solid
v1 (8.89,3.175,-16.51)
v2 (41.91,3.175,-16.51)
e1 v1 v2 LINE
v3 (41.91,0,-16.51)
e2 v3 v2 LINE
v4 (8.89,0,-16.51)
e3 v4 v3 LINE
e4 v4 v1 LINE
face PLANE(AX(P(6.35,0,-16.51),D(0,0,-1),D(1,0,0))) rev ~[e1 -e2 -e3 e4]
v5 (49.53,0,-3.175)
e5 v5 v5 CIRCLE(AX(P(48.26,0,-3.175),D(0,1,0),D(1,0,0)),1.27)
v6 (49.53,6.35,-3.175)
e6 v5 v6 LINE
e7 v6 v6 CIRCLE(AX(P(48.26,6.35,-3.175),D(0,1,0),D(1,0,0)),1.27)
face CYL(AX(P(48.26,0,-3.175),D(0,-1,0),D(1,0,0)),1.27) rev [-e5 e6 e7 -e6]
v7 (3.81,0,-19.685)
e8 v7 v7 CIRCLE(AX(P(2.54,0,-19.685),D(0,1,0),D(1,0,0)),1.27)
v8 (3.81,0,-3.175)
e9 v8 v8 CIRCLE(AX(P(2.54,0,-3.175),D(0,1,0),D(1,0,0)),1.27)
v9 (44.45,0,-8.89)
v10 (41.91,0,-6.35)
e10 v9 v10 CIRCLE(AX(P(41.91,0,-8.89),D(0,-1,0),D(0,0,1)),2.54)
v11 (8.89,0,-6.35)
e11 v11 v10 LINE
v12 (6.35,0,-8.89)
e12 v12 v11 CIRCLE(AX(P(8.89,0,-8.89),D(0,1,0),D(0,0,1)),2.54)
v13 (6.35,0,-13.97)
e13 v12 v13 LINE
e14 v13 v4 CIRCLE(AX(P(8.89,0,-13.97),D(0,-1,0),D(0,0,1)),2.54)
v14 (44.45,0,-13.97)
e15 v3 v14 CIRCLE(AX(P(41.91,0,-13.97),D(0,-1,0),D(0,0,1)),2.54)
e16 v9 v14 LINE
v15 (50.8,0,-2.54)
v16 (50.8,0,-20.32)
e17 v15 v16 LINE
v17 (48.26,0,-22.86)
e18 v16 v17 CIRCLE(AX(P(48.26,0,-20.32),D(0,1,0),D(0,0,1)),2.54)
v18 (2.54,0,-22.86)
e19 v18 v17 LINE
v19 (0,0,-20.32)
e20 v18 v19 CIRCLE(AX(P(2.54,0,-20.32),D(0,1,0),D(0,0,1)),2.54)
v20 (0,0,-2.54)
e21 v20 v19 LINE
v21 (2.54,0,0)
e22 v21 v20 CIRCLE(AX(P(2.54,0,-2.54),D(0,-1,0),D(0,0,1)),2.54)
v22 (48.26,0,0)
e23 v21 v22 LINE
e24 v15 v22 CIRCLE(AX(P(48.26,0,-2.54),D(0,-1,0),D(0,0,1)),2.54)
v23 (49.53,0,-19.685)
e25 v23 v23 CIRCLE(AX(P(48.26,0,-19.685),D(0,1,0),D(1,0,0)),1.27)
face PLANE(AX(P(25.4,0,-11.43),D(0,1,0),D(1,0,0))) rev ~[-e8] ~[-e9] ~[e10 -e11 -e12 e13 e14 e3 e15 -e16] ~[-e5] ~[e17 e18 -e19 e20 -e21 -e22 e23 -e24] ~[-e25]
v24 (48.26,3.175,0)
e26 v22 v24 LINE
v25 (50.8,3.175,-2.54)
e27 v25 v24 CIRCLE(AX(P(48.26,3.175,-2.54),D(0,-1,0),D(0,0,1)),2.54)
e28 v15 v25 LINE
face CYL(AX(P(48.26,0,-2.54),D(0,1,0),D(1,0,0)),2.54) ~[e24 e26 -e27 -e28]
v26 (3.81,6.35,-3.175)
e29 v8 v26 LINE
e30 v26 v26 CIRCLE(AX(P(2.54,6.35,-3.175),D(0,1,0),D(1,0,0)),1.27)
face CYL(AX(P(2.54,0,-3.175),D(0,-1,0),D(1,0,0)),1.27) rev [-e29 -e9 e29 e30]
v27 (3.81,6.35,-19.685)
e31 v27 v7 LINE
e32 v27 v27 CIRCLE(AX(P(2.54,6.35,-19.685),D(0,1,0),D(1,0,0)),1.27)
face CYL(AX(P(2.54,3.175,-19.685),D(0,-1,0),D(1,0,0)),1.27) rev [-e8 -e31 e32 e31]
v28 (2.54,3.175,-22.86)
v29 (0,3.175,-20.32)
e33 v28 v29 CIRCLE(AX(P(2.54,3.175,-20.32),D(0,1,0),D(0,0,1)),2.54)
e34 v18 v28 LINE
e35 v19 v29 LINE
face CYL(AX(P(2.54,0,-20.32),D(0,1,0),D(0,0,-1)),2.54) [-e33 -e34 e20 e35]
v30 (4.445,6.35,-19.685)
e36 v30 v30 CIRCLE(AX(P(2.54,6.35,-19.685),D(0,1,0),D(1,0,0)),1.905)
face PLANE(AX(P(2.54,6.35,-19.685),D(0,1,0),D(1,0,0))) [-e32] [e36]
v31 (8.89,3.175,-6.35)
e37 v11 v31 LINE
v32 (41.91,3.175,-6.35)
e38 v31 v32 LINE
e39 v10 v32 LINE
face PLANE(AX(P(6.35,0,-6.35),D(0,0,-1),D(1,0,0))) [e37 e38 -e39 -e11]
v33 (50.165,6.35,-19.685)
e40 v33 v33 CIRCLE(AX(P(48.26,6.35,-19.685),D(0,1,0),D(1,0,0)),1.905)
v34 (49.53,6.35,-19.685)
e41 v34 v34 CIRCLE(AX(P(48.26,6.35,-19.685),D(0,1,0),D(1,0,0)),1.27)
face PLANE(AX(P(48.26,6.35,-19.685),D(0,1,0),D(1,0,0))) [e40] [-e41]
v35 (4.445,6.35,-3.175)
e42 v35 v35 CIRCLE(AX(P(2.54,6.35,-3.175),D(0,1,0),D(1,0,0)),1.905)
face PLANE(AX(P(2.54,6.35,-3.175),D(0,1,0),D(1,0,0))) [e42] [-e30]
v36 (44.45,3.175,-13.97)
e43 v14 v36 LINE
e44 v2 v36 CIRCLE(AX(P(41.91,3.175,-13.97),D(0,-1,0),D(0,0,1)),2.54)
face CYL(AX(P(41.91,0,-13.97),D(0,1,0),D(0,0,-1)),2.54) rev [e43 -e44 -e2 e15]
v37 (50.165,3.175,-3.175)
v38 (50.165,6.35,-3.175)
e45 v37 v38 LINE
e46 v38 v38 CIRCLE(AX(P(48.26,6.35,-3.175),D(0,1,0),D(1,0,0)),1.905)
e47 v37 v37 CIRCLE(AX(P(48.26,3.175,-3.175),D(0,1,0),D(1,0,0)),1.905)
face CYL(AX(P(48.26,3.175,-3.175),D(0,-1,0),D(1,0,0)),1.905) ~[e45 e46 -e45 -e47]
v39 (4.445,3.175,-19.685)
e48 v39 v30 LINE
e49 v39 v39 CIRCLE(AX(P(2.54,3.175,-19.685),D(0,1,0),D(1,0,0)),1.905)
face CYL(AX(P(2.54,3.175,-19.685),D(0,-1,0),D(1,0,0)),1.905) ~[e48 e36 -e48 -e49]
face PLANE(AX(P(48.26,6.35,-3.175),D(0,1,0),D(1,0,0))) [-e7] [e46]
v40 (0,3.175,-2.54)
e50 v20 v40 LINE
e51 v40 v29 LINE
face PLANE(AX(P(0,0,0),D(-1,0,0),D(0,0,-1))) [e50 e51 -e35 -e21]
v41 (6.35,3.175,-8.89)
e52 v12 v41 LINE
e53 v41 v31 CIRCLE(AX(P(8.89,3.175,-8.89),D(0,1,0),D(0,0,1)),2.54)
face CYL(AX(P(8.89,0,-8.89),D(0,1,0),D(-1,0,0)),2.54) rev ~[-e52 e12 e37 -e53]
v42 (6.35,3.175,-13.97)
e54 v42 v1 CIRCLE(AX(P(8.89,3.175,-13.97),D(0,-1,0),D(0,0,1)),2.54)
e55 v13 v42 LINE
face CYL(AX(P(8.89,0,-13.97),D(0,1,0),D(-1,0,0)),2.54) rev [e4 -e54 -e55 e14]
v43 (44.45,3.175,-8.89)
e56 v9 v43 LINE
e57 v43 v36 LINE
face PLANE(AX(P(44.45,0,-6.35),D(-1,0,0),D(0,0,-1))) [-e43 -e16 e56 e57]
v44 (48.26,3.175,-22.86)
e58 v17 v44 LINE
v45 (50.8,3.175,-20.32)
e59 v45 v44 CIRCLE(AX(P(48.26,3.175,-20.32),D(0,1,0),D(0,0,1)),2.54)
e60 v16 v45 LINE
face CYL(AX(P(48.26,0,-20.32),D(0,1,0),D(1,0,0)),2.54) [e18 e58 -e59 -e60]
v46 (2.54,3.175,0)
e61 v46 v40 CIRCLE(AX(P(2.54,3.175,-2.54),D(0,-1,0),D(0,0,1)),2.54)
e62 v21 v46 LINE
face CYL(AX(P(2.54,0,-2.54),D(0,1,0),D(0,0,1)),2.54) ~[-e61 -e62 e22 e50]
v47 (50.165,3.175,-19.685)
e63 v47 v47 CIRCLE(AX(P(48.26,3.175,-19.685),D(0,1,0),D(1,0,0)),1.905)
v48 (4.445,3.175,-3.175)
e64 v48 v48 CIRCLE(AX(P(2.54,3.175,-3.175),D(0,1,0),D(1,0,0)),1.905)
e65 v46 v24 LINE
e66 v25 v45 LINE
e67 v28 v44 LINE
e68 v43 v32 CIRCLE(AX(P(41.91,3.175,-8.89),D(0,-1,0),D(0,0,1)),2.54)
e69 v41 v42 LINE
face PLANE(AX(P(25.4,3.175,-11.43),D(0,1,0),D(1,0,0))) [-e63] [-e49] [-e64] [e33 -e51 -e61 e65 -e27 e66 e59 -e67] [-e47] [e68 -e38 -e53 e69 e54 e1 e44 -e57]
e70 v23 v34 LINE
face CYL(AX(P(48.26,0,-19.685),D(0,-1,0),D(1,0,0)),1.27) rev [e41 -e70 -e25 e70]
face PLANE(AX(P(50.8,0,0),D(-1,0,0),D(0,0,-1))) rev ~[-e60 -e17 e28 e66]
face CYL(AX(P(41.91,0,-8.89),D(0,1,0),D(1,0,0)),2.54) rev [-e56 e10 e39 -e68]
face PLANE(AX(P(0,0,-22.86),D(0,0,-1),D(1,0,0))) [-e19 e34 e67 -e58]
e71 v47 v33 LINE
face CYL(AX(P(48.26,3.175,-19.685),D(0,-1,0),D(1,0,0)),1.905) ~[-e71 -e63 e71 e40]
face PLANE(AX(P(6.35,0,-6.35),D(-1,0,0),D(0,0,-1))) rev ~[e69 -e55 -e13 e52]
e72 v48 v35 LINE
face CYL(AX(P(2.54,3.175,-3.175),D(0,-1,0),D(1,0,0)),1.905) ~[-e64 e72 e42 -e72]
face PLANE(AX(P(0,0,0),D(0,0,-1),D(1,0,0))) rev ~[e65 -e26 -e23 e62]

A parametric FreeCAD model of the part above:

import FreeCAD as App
import Part
import Sketcher

V = App.Vector
Q = App.Units.Quantity


def edges_at(feature, points):
    """Names of the edges that pass closest to the given points."""
    edges = feature.Shape.Edges
    near = lambda p: min(range(len(edges)), key=lambda i: edges[i].distToShape(Part.Vertex(*p))[0])
    return sorted({f"Edge{near(p) + 1}" for p in points})

doc = App.newDocument("Part")
body = doc.addObject("PartDesign::Body", "Body")

# Sketch on XZ plane
sketch1 = body.newObject("Sketcher::SketchObject", "Sketch")
sketch1.AttachmentSupport = (doc.getObject("XZ_Plane"), [""])
sketch1.MapMode = "FlatFace"
sketch1.addGeometry([
    Part.LineSegment(V(0, -22.9, 0), V(0, 0, 0)),  # 0
    Part.LineSegment(V(0, 0, 0), V(50.8, 0, 0)),  # 1
    Part.LineSegment(V(50.8, 0, 0), V(50.8, -22.9, 0)),  # 2
    Part.LineSegment(V(50.8, -22.9, 0), V(0, -22.9, 0)),  # 3
    Part.Circle(V(2.5, -3.2, 0), V(0, 0, 1), 1.3),  # 4
    Part.Circle(V(48.3, -3.2, 0), V(0, 0, 1), 1.3),  # 5
    Part.Circle(V(2.5, -19.7, 0), V(0, 0, 1), 1.3),  # 6
    Part.LineSegment(V(44.5, -6.3, 0), V(6.3, -6.3, 0)),  # 7
    Part.LineSegment(V(6.3, -6.3, 0), V(6.3, -16.5, 0)),  # 8
    Part.LineSegment(V(6.3, -16.5, 0), V(44.5, -16.5, 0)),  # 9
    Part.LineSegment(V(44.5, -16.5, 0), V(44.5, -6.3, 0)),  # 10
    Part.Circle(V(48.3, -19.7, 0), V(0, 0, 1), 1.3),  # 11
], False)
sketch1.addConstraint([
    Sketcher.Constraint("Coincident", 0, 2, 1, 1),
    Sketcher.Constraint("Coincident", 1, 2, 2, 1),
    Sketcher.Constraint("Coincident", 2, 2, 3, 1),
    Sketcher.Constraint("Coincident", 3, 2, 0, 1),
    Sketcher.Constraint("Coincident", 7, 2, 8, 1),
    Sketcher.Constraint("Coincident", 8, 2, 9, 1),
    Sketcher.Constraint("Coincident", 9, 2, 10, 1),
    Sketcher.Constraint("Coincident", 10, 2, 7, 1),
    Sketcher.Constraint("Vertical", 0),
    Sketcher.Constraint("Horizontal", 1),
    Sketcher.Constraint("Vertical", 2),
    Sketcher.Constraint("Horizontal", 3),
    Sketcher.Constraint("Horizontal", 7),
    Sketcher.Constraint("Vertical", 8),
    Sketcher.Constraint("Horizontal", 9),
    Sketcher.Constraint("Vertical", 10),
    Sketcher.Constraint("Coincident", 0, 2, -1, 1),
    Sketcher.Constraint("Equal", 4, 5),
    Sketcher.Constraint("Equal", 5, 6),
    Sketcher.Constraint("Equal", 6, 11),
    Sketcher.Constraint("Horizontal", 4, 3, 5, 3),
    Sketcher.Constraint("Horizontal", 6, 3, 11, 3),
    Sketcher.Constraint("Vertical", 4, 3, 6, 3),
    Sketcher.Constraint("Vertical", 5, 3, 11, 3),
    Sketcher.Constraint("Diameter", 4, Q("0.1 in")),
    Sketcher.Constraint("DistanceX", 1, 1, 1, 2, Q("2 in")),
    Sketcher.Constraint("DistanceX", 7, 2, 7, 1, Q("1.5 in")),
    Sketcher.Constraint("DistanceY", 0, 1, 0, 2, Q("0.9 in")),
    Sketcher.Constraint("DistanceY", 8, 2, 8, 1, Q("0.4 in")),
    Sketcher.Constraint("DistanceX", -1, 1, 4, 3, Q("0.1 in")),
    Sketcher.Constraint("DistanceX", -1, 1, 5, 3, Q("1.9 in")),
    Sketcher.Constraint("DistanceX", -1, 1, 7, 2, Q("0.25 in")),
    Sketcher.Constraint("DistanceY", 7, 2, -1, 1, Q("0.25 in")),
    Sketcher.Constraint("DistanceY", 6, 3, 4, 3, Q("0.65 in")),
    Sketcher.Constraint("DistanceY", 4, 3, -1, 1, Q("0.125 in")),
])
pad1 = body.newObject("PartDesign::Pad", "Pad")
pad1.Profile = sketch1
pad1.Length = Q("0.125 in")
pad1.Reversed = True

# Sketch on XZ plane
sketch2 = body.newObject("Sketcher::SketchObject", "Sketch001")
sketch2.AttachmentSupport = (doc.getObject("XZ_Plane"), [""])
sketch2.MapMode = "FlatFace"
sketch2.AttachmentOffset = App.Placement(V(0, 0, -0.125 * 25.4), App.Rotation())
sketch2.addGeometry([
    Part.Circle(V(2.5, -19.7, 0), V(0, 0, 1), 1.9),  # 0
    Part.Circle(V(2.5, -19.7, 0), V(0, 0, 1), 1.3),  # 1
    Part.Circle(V(2.5, -3.2, 0), V(0, 0, 1), 1.9),  # 2
    Part.Circle(V(2.5, -3.2, 0), V(0, 0, 1), 1.3),  # 3
    Part.Circle(V(48.3, -3.2, 0), V(0, 0, 1), 1.9),  # 4
    Part.Circle(V(48.3, -3.2, 0), V(0, 0, 1), 1.3),  # 5
    Part.Circle(V(48.3, -19.7, 0), V(0, 0, 1), 1.9),  # 6
    Part.Circle(V(48.3, -19.7, 0), V(0, 0, 1), 1.3),  # 7
], False)
sketch2.addConstraint([
    Sketcher.Constraint("Coincident", 1, 3, 0, 3),
    Sketcher.Constraint("Coincident", 3, 3, 2, 3),
    Sketcher.Constraint("Coincident", 5, 3, 4, 3),
    Sketcher.Constraint("Coincident", 7, 3, 6, 3),
    Sketcher.Constraint("Equal", 0, 2),
    Sketcher.Constraint("Equal", 1, 3),
    Sketcher.Constraint("Equal", 2, 4),
    Sketcher.Constraint("Equal", 3, 5),
    Sketcher.Constraint("Equal", 4, 6),
    Sketcher.Constraint("Equal", 5, 7),
    Sketcher.Constraint("Horizontal", 3, 3, 4, 3),
    Sketcher.Constraint("Horizontal", 1, 3, 6, 3),
    Sketcher.Constraint("Vertical", 1, 3, 2, 3),
    Sketcher.Constraint("Vertical", 5, 3, 6, 3),
    Sketcher.Constraint("Diameter", 1, Q("0.1 in")),
    Sketcher.Constraint("Diameter", 0, Q("0.15 in")),
    Sketcher.Constraint("DistanceX", -1, 1, 0, 3, Q("0.1 in")),
    Sketcher.Constraint("DistanceX", -1, 1, 4, 3, Q("1.9 in")),
    Sketcher.Constraint("DistanceY", 0, 3, 2, 3, Q("0.65 in")),
    Sketcher.Constraint("DistanceY", 0, 3, -1, 1, Q("0.775 in")),
])
pad2 = body.newObject("PartDesign::Pad", "Pad001")
pad2.Profile = sketch2
pad2.Length = Q("0.125 in")
pad2.Reversed = True
doc.recompute()

fillet = body.newObject("PartDesign::Fillet", "Fillet")
fillet.Base = (pad2, edges_at(pad2, [
    (6.35, 1.587, -16.51),
    (6.35, 1.587, -6.35),
    (44.45, 1.587, -6.35),
    (44.45, 1.587, -16.51),
    (0, 1.587, -22.86),
    (50.8, 1.587, -22.86),
    (50.8, 1.587, 0),
    (0, 1.587, 0),
]))
fillet.Radius = Q("0.1 in")

doc.recompute()
